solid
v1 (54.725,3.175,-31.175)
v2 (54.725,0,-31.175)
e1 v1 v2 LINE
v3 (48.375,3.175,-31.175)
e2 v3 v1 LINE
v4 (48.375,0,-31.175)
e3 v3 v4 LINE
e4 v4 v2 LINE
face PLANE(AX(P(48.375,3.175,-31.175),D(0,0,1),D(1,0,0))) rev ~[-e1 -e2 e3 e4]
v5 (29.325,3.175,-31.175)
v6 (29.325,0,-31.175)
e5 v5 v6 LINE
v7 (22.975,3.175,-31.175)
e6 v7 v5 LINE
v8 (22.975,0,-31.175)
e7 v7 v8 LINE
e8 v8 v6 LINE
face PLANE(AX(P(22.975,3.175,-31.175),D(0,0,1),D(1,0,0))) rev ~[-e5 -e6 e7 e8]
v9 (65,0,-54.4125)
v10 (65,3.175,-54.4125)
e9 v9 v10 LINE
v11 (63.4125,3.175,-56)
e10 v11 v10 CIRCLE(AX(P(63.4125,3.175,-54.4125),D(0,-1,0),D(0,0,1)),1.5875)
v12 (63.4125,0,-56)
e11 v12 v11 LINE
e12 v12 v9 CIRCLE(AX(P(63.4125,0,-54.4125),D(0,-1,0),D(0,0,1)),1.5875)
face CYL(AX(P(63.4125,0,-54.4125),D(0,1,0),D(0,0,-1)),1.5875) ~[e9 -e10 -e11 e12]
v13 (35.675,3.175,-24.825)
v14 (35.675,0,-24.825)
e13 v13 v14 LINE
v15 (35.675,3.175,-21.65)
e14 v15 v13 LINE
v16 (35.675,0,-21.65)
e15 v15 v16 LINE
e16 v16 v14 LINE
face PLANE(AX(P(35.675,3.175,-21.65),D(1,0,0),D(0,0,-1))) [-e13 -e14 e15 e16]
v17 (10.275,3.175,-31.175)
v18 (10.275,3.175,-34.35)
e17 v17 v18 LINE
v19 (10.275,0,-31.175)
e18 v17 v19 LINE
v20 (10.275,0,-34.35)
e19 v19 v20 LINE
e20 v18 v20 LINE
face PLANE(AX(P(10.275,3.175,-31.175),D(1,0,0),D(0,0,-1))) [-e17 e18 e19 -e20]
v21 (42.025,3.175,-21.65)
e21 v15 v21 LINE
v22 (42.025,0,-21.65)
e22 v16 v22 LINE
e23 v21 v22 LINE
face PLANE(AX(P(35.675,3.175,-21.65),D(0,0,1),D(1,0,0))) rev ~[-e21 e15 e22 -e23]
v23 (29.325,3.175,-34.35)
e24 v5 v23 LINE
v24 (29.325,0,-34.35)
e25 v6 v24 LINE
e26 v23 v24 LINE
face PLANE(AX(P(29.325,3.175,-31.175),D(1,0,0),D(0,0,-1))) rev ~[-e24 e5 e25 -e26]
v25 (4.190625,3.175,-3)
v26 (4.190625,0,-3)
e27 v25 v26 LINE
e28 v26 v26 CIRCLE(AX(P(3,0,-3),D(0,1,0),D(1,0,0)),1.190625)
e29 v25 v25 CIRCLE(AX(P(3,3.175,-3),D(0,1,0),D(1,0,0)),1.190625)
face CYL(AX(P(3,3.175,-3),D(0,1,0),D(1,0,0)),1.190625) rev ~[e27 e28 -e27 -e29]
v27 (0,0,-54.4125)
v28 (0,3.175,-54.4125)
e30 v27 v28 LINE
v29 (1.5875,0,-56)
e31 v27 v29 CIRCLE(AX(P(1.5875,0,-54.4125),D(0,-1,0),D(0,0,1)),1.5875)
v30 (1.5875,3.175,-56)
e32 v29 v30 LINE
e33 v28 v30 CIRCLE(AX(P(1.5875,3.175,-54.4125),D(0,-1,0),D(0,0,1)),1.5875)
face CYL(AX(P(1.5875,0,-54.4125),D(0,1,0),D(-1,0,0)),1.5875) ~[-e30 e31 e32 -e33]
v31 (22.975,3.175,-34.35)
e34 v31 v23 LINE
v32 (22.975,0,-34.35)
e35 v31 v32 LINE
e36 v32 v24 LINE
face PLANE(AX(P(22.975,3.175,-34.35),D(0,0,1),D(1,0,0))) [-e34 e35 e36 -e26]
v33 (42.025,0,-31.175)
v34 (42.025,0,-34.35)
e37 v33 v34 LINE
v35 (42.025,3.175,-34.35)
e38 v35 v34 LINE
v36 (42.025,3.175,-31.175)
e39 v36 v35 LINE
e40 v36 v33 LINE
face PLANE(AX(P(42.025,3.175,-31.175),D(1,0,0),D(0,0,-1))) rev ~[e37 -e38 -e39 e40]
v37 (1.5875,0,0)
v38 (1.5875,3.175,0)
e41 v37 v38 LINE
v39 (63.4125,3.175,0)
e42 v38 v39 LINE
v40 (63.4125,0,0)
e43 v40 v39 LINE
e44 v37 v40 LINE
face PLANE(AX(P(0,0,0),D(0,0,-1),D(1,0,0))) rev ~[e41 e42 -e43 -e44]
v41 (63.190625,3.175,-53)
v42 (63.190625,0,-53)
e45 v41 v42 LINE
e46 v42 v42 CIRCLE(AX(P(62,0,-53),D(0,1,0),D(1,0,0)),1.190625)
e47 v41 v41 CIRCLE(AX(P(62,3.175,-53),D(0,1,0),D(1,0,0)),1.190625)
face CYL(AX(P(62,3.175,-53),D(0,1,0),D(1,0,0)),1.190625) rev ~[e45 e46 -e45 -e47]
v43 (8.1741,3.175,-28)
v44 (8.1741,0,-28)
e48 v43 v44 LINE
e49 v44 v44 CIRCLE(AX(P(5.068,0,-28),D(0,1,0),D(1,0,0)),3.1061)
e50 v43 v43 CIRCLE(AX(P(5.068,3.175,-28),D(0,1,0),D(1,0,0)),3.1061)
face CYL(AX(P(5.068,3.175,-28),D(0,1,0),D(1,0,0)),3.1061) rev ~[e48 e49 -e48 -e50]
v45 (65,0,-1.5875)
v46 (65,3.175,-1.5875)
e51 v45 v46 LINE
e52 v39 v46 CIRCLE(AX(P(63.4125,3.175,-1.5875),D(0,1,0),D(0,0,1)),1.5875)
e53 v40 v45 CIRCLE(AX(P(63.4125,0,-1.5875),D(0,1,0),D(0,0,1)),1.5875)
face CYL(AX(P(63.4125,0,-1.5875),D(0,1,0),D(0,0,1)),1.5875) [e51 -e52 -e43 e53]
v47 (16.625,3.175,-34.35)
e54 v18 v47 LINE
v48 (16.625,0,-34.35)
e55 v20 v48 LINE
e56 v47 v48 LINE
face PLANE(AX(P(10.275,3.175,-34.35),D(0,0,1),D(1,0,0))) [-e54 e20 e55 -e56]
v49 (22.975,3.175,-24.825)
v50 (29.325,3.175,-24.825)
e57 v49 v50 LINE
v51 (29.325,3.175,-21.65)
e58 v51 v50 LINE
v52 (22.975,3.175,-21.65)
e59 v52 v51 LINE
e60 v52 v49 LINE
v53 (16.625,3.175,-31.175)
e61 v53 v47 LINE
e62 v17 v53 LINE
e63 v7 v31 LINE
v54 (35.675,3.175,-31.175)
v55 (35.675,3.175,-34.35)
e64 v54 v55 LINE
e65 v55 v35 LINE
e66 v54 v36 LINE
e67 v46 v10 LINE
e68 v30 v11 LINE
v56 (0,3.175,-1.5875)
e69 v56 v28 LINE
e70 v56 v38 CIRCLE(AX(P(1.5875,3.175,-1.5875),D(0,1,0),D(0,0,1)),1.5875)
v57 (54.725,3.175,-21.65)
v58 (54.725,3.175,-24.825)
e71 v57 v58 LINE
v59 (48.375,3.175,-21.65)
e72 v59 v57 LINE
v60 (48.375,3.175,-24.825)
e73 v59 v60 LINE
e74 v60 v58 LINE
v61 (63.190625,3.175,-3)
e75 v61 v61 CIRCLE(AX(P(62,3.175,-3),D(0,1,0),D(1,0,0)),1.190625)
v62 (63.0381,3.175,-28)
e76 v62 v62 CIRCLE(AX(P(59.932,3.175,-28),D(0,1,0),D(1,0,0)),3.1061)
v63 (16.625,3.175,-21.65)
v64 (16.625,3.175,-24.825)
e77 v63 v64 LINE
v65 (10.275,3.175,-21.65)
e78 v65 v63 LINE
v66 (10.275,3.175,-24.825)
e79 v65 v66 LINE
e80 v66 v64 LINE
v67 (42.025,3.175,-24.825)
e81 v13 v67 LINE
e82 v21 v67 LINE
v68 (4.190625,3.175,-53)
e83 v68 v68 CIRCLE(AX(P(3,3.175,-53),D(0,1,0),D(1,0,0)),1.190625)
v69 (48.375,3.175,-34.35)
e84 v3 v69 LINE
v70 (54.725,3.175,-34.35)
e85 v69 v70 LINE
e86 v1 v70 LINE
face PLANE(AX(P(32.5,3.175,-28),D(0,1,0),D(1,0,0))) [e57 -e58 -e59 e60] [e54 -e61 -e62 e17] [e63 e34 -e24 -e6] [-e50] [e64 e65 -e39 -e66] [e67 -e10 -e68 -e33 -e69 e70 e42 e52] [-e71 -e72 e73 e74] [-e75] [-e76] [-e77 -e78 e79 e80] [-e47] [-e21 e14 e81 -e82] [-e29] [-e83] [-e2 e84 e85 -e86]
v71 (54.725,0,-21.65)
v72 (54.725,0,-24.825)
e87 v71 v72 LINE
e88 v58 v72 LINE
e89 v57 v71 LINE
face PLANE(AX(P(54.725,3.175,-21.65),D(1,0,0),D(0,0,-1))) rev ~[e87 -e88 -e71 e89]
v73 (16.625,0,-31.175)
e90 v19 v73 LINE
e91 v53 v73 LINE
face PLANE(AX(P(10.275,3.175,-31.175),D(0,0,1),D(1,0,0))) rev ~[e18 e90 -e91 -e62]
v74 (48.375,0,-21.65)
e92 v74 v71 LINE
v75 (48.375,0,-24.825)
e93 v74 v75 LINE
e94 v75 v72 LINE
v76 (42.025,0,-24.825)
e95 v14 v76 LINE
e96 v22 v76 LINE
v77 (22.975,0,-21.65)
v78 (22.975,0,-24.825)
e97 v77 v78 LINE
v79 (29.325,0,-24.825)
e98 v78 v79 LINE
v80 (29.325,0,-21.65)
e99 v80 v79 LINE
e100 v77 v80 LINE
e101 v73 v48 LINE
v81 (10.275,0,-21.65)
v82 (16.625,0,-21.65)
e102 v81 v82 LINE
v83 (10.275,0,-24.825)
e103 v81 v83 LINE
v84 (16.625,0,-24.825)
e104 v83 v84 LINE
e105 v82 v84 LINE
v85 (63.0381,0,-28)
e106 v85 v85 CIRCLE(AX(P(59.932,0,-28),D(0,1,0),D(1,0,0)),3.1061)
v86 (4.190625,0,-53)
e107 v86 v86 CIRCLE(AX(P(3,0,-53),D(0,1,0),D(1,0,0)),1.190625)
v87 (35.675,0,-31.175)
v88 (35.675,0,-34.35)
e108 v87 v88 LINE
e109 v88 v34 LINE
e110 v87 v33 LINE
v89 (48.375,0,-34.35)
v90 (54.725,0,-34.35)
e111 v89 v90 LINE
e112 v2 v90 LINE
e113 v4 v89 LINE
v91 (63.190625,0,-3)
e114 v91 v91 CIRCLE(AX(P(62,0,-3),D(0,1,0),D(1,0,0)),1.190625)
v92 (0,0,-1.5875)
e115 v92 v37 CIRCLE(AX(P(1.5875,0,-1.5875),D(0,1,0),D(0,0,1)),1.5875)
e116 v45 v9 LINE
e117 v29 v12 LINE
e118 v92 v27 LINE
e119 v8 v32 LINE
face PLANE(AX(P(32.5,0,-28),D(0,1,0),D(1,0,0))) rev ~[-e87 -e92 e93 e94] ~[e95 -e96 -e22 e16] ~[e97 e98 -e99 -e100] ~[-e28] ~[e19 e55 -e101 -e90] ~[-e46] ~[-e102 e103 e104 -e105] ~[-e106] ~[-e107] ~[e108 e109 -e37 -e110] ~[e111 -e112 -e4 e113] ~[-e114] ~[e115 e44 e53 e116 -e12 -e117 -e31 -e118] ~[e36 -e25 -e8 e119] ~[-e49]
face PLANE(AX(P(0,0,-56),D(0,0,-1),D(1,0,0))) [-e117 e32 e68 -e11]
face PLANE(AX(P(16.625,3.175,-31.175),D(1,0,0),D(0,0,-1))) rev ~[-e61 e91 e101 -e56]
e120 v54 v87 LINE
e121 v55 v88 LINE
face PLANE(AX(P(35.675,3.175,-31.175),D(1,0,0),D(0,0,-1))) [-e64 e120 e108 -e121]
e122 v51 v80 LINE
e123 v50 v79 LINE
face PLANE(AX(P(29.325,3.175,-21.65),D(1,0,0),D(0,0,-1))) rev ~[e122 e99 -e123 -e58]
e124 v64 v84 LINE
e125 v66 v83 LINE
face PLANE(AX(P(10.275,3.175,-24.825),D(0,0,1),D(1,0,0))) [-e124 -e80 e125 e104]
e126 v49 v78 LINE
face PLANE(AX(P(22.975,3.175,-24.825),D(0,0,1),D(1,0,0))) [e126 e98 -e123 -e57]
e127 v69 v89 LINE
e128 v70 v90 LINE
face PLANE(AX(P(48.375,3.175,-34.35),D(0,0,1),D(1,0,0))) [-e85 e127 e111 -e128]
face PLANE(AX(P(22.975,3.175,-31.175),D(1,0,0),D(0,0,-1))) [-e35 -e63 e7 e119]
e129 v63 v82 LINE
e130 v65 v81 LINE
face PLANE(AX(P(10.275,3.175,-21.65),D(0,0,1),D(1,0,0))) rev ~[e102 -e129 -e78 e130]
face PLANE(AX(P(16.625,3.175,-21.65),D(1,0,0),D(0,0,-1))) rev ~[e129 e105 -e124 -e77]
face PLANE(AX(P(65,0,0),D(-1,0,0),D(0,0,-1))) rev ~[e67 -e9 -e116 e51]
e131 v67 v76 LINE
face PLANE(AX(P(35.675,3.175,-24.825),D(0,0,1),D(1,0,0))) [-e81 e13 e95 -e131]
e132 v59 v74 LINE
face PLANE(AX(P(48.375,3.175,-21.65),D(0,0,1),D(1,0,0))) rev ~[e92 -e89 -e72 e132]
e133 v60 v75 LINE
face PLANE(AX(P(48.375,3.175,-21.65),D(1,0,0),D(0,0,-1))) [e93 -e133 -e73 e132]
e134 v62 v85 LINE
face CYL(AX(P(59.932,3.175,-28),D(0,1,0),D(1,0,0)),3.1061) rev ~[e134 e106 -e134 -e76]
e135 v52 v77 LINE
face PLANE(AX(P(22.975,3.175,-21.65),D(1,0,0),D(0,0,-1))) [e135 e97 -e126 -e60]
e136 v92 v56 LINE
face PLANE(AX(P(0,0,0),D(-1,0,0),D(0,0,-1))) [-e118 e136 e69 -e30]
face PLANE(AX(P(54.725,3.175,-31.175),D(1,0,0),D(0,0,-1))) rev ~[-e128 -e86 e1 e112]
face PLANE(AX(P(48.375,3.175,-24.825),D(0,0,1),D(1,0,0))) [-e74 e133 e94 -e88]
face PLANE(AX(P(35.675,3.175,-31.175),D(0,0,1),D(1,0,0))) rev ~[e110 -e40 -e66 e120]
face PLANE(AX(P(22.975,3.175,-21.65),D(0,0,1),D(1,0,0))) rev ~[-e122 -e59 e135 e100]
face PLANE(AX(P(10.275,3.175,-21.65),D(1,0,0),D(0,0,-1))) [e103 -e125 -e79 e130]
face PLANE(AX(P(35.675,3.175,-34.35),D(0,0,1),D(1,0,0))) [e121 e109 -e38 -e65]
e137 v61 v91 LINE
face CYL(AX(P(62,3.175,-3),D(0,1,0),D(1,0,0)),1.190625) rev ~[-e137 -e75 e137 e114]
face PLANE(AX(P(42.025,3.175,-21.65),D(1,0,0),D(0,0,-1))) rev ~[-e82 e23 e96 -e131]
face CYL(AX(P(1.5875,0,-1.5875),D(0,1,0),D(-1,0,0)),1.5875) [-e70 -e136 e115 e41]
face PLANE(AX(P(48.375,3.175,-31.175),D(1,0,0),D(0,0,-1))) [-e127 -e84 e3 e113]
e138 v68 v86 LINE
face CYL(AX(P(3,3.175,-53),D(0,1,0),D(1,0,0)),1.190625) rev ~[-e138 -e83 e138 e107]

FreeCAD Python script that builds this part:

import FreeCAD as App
import Part
import Sketcher
from FreeCAD import Vector
Q = App.Units.Quantity


def edges_at(feature, points):
    """Names of the edges that pass closest to the given points."""
    edges = feature.Shape.Edges
    near = lambda p: min(range(len(edges)), key=lambda i: edges[i].distToShape(Part.Vertex(*p))[0])
    return sorted({f"Edge{near(p) + 1}" for p in points})

doc = App.newDocument("Part")
body = doc.addObject("PartDesign::Body", "Body")

# Sketch on XZ plane
sketch1 = body.newObject("Sketcher::SketchObject", "Sketch")
sketch1.AttachmentSupport = (doc.getObject("XZ_Plane"), [""])
sketch1.MapMode = "FlatFace"
sketch1.addGeometry([
    Part.LineSegment(Vector(0, -56, 0), Vector(0, 0, 0)),
    Part.LineSegment(Vector(0, 0, 0), Vector(65, 0, 0)),
    Part.LineSegment(Vector(65, 0, 0), Vector(65, -56, 0)),
    Part.LineSegment(Vector(65, -56, 0), Vector(0, -56, 0)),
], False)
sketch1.addConstraint([
    Sketcher.Constraint("Coincident", 0, 2, 1, 1),
    Sketcher.Constraint("Coincident", 1, 2, 2, 1),
    Sketcher.Constraint("Coincident", 2, 2, 3, 1),
    Sketcher.Constraint("Coincident", 3, 2, 0, 1),
    Sketcher.Constraint("Vertical", 0),
    Sketcher.Constraint("Horizontal", 1),
    Sketcher.Constraint("Vertical", 2),
    Sketcher.Constraint("Horizontal", 3),
    Sketcher.Constraint("Coincident", 0, 2, -1, 1),
    Sketcher.Constraint("DistanceX", 1, 1, 1, 2, Q("65 mm")),
    Sketcher.Constraint("DistanceY", 0, 1, 0, 2, Q("56 mm")),
])
pad1 = body.newObject("PartDesign::Pad", "Pad")
pad1.Profile = sketch1
pad1.Length = Q("0.125 in")
pad1.Reversed = True

# Sketch on XZ plane
sketch2 = body.newObject("Sketcher::SketchObject", "Sketch001")
sketch2.AttachmentSupport = (doc.getObject("XZ_Plane"), [""])
sketch2.MapMode = "FlatFace"
sketch2.AttachmentOffset = App.Placement(Vector(0, 0, -0.125 * 25.4), App.Rotation())
sketch2.addGeometry([
    Part.Circle(Vector(62, -53, 0), Vector(0, 0, 1), 1.2),  # 0
    Part.Circle(Vector(3, -53, 0), Vector(0, 0, 1), 1.2),  # 1
    Part.Circle(Vector(3, -3, 0), Vector(0, 0, 1), 1.2),  # 2
    Part.Circle(Vector(62, -3, 0), Vector(0, 0, 1), 1.2),  # 3
    Part.LineSegment(Vector(10.3, -34.4, 0), Vector(10.3, -31.2, 0)),  # 4
    Part.LineSegment(Vector(10.3, -31.2, 0), Vector(16.6, -31.2, 0)),  # 5
    Part.LineSegment(Vector(16.6, -31.2, 0), Vector(16.6, -34.4, 0)),  # 6
    Part.LineSegment(Vector(16.6, -34.4, 0), Vector(10.3, -34.4, 0)),  # 7
    Part.LineSegment(Vector(35.7, -34.4, 0), Vector(35.7, -31.2, 0)),  # 8
    Part.LineSegment(Vector(35.7, -31.2, 0), Vector(42, -31.2, 0)),  # 9
    Part.LineSegment(Vector(42, -31.2, 0), Vector(42, -34.4, 0)),  # 10
    Part.LineSegment(Vector(42, -34.4, 0), Vector(35.7, -34.4, 0)),  # 11
    Part.LineSegment(Vector(48.4, -34.4, 0), Vector(48.4, -31.2, 0)),  # 12
    Part.LineSegment(Vector(48.4, -31.2, 0), Vector(54.7, -31.2, 0)),  # 13
    Part.LineSegment(Vector(54.7, -31.2, 0), Vector(54.7, -34.4, 0)),  # 14
    Part.LineSegment(Vector(54.7, -34.4, 0), Vector(48.4, -34.4, 0)),  # 15
    Part.LineSegment(Vector(23, -34.4, 0), Vector(23, -31.2, 0)),  # 16
    Part.LineSegment(Vector(23, -31.2, 0), Vector(29.3, -31.2, 0)),  # 17
    Part.LineSegment(Vector(29.3, -31.2, 0), Vector(29.3, -34.4, 0)),  # 18
    Part.LineSegment(Vector(29.3, -34.4, 0), Vector(23, -34.4, 0)),  # 19
    Part.LineSegment(Vector(23, -24.8, 0), Vector(23, -21.6, 0)),  # 20
    Part.LineSegment(Vector(23, -21.6, 0), Vector(29.3, -21.6, 0)),  # 21
    Part.LineSegment(Vector(29.3, -21.6, 0), Vector(29.3, -24.8, 0)),  # 22
    Part.LineSegment(Vector(29.3, -24.8, 0), Vector(23, -24.8, 0)),  # 23
    Part.LineSegment(Vector(10.3, -24.8, 0), Vector(10.3, -21.6, 0)),  # 24
    Part.LineSegment(Vector(10.3, -21.6, 0), Vector(16.6, -21.6, 0)),  # 25
    Part.LineSegment(Vector(16.6, -21.6, 0), Vector(16.6, -24.8, 0)),  # 26
    Part.LineSegment(Vector(16.6, -24.8, 0), Vector(10.3, -24.8, 0)),  # 27
    Part.LineSegment(Vector(48.4, -24.8, 0), Vector(48.4, -21.6, 0)),  # 28
    Part.LineSegment(Vector(48.4, -21.6, 0), Vector(54.7, -21.6, 0)),  # 29
    Part.LineSegment(Vector(54.7, -21.6, 0), Vector(54.7, -24.8, 0)),  # 30
    Part.LineSegment(Vector(54.7, -24.8, 0), Vector(48.4, -24.8, 0)),  # 31
    Part.LineSegment(Vector(35.7, -24.8, 0), Vector(35.7, -21.6, 0)),  # 32
    Part.LineSegment(Vector(35.7, -21.6, 0), Vector(42, -21.6, 0)),  # 33
    Part.LineSegment(Vector(42, -21.6, 0), Vector(42, -24.8, 0)),  # 34
    Part.LineSegment(Vector(42, -24.8, 0), Vector(35.7, -24.8, 0)),  # 35
], False)
sketch2.addConstraint([
    Sketcher.Constraint("Coincident", 4, 2, 5, 1),
    Sketcher.Constraint("Coincident", 5, 2, 6, 1),
    Sketcher.Constraint("Coincident", 6, 2, 7, 1),
    Sketcher.Constraint("Coincident", 7, 2, 4, 1),
    Sketcher.Constraint("Coincident", 8, 2, 9, 1),
    Sketcher.Constraint("Coincident", 9, 2, 10, 1),
    Sketcher.Constraint("Coincident", 10, 2, 11, 1),
    Sketcher.Constraint("Coincident", 11, 2, 8, 1),
    Sketcher.Constraint("Coincident", 12, 2, 13, 1),
    Sketcher.Constraint("Coincident", 13, 2, 14, 1),
    Sketcher.Constraint("Coincident", 14, 2, 15, 1),
    Sketcher.Constraint("Coincident", 15, 2, 12, 1),
    Sketcher.Constraint("Coincident", 16, 2, 17, 1),
    Sketcher.Constraint("Coincident", 17, 2, 18, 1),
    Sketcher.Constraint("Coincident", 18, 2, 19, 1),
    Sketcher.Constraint("Coincident", 19, 2, 16, 1),
    Sketcher.Constraint("Coincident", 20, 2, 21, 1),
    Sketcher.Constraint("Coincident", 21, 2, 22, 1),
    Sketcher.Constraint("Coincident", 22, 2, 23, 1),
    Sketcher.Constraint("Coincident", 23, 2, 20, 1),
    Sketcher.Constraint("Coincident", 24, 2, 25, 1),
    Sketcher.Constraint("Coincident", 25, 2, 26, 1),
    Sketcher.Constraint("Coincident", 26, 2, 27, 1),
    Sketcher.Constraint("Coincident", 27, 2, 24, 1),
    Sketcher.Constraint("Coincident", 28, 2, 29, 1),
    Sketcher.Constraint("Coincident", 29, 2, 30, 1),
    Sketcher.Constraint("Coincident", 30, 2, 31, 1),
    Sketcher.Constraint("Coincident", 31, 2, 28, 1),
    Sketcher.Constraint("Coincident", 32, 2, 33, 1),
    Sketcher.Constraint("Coincident", 33, 2, 34, 1),
    Sketcher.Constraint("Coincident", 34, 2, 35, 1),
    Sketcher.Constraint("Coincident", 35, 2, 32, 1),
    Sketcher.Constraint("Vertical", 4),
    Sketcher.Constraint("Horizontal", 5),
    Sketcher.Constraint("Vertical", 6),
    Sketcher.Constraint("Horizontal", 7),
    Sketcher.Constraint("Vertical", 8),
    Sketcher.Constraint("Horizontal", 9),
    Sketcher.Constraint("Vertical", 10),
    Sketcher.Constraint("Horizontal", 11),
    Sketcher.Constraint("Vertical", 12),
    Sketcher.Constraint("Horizontal", 13),
    Sketcher.Constraint("Vertical", 14),
    Sketcher.Constraint("Horizontal", 15),
    Sketcher.Constraint("Vertical", 16),
    Sketcher.Constraint("Horizontal", 17),
    Sketcher.Constraint("Vertical", 18),
    Sketcher.Constraint("Horizontal", 19),
    Sketcher.Constraint("Vertical", 20),
    Sketcher.Constraint("Horizontal", 21),
    Sketcher.Constraint("Vertical", 22),
    Sketcher.Constraint("Horizontal", 23),
    Sketcher.Constraint("Vertical", 24),
    Sketcher.Constraint("Horizontal", 25),
    Sketcher.Constraint("Vertical", 26),
    Sketcher.Constraint("Horizontal", 27),
    Sketcher.Constraint("Vertical", 28),
    Sketcher.Constraint("Horizontal", 29),
    Sketcher.Constraint("Vertical", 30),
    Sketcher.Constraint("Horizontal", 31),
    Sketcher.Constraint("Vertical", 32),
    Sketcher.Constraint("Horizontal", 33),
    Sketcher.Constraint("Vertical", 34),
    Sketcher.Constraint("Horizontal", 35),
    Sketcher.Constraint("Equal", 0, 1),
    Sketcher.Constraint("Equal", 1, 2),
    Sketcher.Constraint("Equal", 2, 3),
    Sketcher.Constraint("Horizontal", 0, 3, 1, 3),
    Sketcher.Constraint("Horizontal", 2, 3, 3, 3),
    Sketcher.Constraint("Horizontal", 5, 2, 8, 2),
    Sketcher.Constraint("Horizontal", 7, 2, 10, 2),
    Sketcher.Constraint("Horizontal", 9, 2, 12, 2),
    Sketcher.Constraint("Horizontal", 11, 2, 14, 2),
    Sketcher.Constraint("Horizontal", 13, 2, 16, 2),
    Sketcher.Constraint("Horizontal", 15, 2, 18, 2),
    Sketcher.Constraint("Horizontal", 21, 2, 24, 2),
    Sketcher.Constraint("Horizontal", 23, 2, 26, 2),
    Sketcher.Constraint("Horizontal", 25, 2, 28, 2),
    Sketcher.Constraint("Horizontal", 27, 2, 30, 2),
    Sketcher.Constraint("Horizontal", 29, 2, 32, 2),
    Sketcher.Constraint("Horizontal", 31, 2, 34, 2),
    Sketcher.Constraint("Vertical", 1, 3, 2, 3),
    Sketcher.Constraint("Vertical", 0, 3, 3, 3),
    Sketcher.Constraint("Vertical", 19, 2, 20, 2),
    Sketcher.Constraint("Vertical", 18, 2, 21, 2),
    Sketcher.Constraint("Vertical", 7, 2, 24, 2),
    Sketcher.Constraint("Vertical", 6, 2, 25, 2),
    Sketcher.Constraint("Vertical", 15, 2, 28, 2),
    Sketcher.Constraint("Vertical", 14, 2, 29, 2),
    Sketcher.Constraint("Vertical", 11, 2, 32, 2),
    Sketcher.Constraint("Vertical", 10, 2, 33, 2),
    Sketcher.Constraint("Equal", 7, 9),
    Sketcher.Constraint("Equal", 11, 13),
    Sketcher.Constraint("Equal", 15, 17),
    Sketcher.Constraint("Equal", 18, 20),
    Sketcher.Constraint("Diameter", 0, Q("0.09375 in")),
    Sketcher.Constraint("DistanceX", 4, 2, 8, 2, Q("1 in")),
    Sketcher.Constraint("DistanceX", 5, 1, 5, 2, Q("0.25 in")),
    Sketcher.Constraint("DistanceX", 8, 2, 12, 2, Q("0.5 in")),
    Sketcher.Constraint("DistanceX", 16, 2, 8, 2, Q("0.5 in")),
    Sketcher.Constraint("DistanceY", 19, 2, 20, 2, Q("0.5 in")),
    Sketcher.Constraint("DistanceY", 4, 1, 4, 2, Q("0.125 in")),
    Sketcher.Constraint("DistanceX", -1, 1, 0, 3, Q("62 mm")),
    Sketcher.Constraint("DistanceY", 0, 3, -1, 1, Q("53 mm")),
    Sketcher.Constraint("DistanceX", -1, 1, 1, 3, Q("3 mm")),
    Sketcher.Constraint("DistanceY", 2, 3, -1, 1, Q("3 mm")),
    Sketcher.Constraint("DistanceX", -1, 1, 4, 2, Q("10.275 mm")),
    Sketcher.Constraint("DistanceY", 4, 2, -1, 1, Q("31.175 mm")),
])
pocket1 = body.newObject("PartDesign::Pocket", "Pocket")
pocket1.Profile = sketch2
pocket1.Length = Q("0.125 in")
pocket1.Reversed = True
doc.recompute()

fillet = body.newObject("PartDesign::Fillet", "Fillet")
fillet.Base = (pocket1, edges_at(pocket1, [
    (0, 1.587, -56),
    (65, 1.587, -56),
    (65, 1.587, 0),
    (0, 1.587, 0),
]))
fillet.Radius = Q("0.0625 in")

# Sketch on XZ plane
sketch3 = body.newObject("Sketcher::SketchObject", "Sketch002")
sketch3.AttachmentSupport = (doc.getObject("XZ_Plane"), [""])
sketch3.MapMode = "FlatFace"
sketch3.AttachmentOffset = App.Placement(Vector(0, 0, -0.125 * 25.4), App.Rotation())
sketch3.addGeometry([
    Part.Circle(Vector(5.1, -28, 0), Vector(0, 0, 1), 3.1),
    Part.Circle(Vector(59.9, -28, 0), Vector(0, 0, 1), 3.1),
], False)
sketch3.addConstraint([
    Sketcher.Constraint("Equal", 0, 1),
    Sketcher.Constraint("Horizontal", 0, 3, 1, 3),
    Sketcher.Constraint("Diameter", 0, Q("6.212199 mm")),
    Sketcher.Constraint("DistanceX", 0, 3, 1, 3, Q("2.16 in")),
    Sketcher.Constraint("DistanceX", -1, 1, 0, 3, Q("5.068 mm")),
    Sketcher.Constraint("DistanceY", 0, 3, -1, 1, Q("28 mm")),
])
pocket2 = body.newObject("PartDesign::Pocket", "Pocket001")
pocket2.Profile = sketch3
pocket2.Length = Q("0.125 in")
pocket2.Reversed = True

doc.recompute()
